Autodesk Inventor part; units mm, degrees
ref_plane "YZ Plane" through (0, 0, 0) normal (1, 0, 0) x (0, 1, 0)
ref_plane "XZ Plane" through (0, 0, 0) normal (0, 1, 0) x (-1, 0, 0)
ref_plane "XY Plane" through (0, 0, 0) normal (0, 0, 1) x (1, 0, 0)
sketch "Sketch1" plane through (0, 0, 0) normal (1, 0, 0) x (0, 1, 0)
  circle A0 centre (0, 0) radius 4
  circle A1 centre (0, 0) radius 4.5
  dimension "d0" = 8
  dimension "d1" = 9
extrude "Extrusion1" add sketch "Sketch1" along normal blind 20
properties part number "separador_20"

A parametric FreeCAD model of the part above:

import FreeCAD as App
import Part
import Sketcher

V = App.Vector
Q = App.Units.Quantity

doc = App.newDocument("Part")
body = doc.addObject("PartDesign::Body", "Body")

sketch1 = doc.addObject("Sketcher::SketchObject", "Sketch")
body.addObject(sketch1)
sketch1.AttachmentSupport = (doc.YZ_Plane, [""])
sketch1.MapMode = "FlatFace"
sketch1.addGeometry([
    Part.Circle(V(0, 0, 0), V(0, 0, 1), 4.5),
    Part.Circle(V(0, 0, 0), V(0, 0, 1), 4),
], False)
sketch1.addConstraint([
    Sketcher.Constraint("Coincident", 0, 3, -1, 1),
    Sketcher.Constraint("Coincident", 1, 3, -1, 1),
    Sketcher.Constraint("Diameter", 0, Q("9 mm")),
    Sketcher.Constraint("Diameter", 1, Q("8 mm")),
])
pad1 = doc.addObject("PartDesign::Pad", "Pad")
body.addObject(pad1)
pad1.Profile = sketch1
pad1.Length = 20

doc.recompute()
